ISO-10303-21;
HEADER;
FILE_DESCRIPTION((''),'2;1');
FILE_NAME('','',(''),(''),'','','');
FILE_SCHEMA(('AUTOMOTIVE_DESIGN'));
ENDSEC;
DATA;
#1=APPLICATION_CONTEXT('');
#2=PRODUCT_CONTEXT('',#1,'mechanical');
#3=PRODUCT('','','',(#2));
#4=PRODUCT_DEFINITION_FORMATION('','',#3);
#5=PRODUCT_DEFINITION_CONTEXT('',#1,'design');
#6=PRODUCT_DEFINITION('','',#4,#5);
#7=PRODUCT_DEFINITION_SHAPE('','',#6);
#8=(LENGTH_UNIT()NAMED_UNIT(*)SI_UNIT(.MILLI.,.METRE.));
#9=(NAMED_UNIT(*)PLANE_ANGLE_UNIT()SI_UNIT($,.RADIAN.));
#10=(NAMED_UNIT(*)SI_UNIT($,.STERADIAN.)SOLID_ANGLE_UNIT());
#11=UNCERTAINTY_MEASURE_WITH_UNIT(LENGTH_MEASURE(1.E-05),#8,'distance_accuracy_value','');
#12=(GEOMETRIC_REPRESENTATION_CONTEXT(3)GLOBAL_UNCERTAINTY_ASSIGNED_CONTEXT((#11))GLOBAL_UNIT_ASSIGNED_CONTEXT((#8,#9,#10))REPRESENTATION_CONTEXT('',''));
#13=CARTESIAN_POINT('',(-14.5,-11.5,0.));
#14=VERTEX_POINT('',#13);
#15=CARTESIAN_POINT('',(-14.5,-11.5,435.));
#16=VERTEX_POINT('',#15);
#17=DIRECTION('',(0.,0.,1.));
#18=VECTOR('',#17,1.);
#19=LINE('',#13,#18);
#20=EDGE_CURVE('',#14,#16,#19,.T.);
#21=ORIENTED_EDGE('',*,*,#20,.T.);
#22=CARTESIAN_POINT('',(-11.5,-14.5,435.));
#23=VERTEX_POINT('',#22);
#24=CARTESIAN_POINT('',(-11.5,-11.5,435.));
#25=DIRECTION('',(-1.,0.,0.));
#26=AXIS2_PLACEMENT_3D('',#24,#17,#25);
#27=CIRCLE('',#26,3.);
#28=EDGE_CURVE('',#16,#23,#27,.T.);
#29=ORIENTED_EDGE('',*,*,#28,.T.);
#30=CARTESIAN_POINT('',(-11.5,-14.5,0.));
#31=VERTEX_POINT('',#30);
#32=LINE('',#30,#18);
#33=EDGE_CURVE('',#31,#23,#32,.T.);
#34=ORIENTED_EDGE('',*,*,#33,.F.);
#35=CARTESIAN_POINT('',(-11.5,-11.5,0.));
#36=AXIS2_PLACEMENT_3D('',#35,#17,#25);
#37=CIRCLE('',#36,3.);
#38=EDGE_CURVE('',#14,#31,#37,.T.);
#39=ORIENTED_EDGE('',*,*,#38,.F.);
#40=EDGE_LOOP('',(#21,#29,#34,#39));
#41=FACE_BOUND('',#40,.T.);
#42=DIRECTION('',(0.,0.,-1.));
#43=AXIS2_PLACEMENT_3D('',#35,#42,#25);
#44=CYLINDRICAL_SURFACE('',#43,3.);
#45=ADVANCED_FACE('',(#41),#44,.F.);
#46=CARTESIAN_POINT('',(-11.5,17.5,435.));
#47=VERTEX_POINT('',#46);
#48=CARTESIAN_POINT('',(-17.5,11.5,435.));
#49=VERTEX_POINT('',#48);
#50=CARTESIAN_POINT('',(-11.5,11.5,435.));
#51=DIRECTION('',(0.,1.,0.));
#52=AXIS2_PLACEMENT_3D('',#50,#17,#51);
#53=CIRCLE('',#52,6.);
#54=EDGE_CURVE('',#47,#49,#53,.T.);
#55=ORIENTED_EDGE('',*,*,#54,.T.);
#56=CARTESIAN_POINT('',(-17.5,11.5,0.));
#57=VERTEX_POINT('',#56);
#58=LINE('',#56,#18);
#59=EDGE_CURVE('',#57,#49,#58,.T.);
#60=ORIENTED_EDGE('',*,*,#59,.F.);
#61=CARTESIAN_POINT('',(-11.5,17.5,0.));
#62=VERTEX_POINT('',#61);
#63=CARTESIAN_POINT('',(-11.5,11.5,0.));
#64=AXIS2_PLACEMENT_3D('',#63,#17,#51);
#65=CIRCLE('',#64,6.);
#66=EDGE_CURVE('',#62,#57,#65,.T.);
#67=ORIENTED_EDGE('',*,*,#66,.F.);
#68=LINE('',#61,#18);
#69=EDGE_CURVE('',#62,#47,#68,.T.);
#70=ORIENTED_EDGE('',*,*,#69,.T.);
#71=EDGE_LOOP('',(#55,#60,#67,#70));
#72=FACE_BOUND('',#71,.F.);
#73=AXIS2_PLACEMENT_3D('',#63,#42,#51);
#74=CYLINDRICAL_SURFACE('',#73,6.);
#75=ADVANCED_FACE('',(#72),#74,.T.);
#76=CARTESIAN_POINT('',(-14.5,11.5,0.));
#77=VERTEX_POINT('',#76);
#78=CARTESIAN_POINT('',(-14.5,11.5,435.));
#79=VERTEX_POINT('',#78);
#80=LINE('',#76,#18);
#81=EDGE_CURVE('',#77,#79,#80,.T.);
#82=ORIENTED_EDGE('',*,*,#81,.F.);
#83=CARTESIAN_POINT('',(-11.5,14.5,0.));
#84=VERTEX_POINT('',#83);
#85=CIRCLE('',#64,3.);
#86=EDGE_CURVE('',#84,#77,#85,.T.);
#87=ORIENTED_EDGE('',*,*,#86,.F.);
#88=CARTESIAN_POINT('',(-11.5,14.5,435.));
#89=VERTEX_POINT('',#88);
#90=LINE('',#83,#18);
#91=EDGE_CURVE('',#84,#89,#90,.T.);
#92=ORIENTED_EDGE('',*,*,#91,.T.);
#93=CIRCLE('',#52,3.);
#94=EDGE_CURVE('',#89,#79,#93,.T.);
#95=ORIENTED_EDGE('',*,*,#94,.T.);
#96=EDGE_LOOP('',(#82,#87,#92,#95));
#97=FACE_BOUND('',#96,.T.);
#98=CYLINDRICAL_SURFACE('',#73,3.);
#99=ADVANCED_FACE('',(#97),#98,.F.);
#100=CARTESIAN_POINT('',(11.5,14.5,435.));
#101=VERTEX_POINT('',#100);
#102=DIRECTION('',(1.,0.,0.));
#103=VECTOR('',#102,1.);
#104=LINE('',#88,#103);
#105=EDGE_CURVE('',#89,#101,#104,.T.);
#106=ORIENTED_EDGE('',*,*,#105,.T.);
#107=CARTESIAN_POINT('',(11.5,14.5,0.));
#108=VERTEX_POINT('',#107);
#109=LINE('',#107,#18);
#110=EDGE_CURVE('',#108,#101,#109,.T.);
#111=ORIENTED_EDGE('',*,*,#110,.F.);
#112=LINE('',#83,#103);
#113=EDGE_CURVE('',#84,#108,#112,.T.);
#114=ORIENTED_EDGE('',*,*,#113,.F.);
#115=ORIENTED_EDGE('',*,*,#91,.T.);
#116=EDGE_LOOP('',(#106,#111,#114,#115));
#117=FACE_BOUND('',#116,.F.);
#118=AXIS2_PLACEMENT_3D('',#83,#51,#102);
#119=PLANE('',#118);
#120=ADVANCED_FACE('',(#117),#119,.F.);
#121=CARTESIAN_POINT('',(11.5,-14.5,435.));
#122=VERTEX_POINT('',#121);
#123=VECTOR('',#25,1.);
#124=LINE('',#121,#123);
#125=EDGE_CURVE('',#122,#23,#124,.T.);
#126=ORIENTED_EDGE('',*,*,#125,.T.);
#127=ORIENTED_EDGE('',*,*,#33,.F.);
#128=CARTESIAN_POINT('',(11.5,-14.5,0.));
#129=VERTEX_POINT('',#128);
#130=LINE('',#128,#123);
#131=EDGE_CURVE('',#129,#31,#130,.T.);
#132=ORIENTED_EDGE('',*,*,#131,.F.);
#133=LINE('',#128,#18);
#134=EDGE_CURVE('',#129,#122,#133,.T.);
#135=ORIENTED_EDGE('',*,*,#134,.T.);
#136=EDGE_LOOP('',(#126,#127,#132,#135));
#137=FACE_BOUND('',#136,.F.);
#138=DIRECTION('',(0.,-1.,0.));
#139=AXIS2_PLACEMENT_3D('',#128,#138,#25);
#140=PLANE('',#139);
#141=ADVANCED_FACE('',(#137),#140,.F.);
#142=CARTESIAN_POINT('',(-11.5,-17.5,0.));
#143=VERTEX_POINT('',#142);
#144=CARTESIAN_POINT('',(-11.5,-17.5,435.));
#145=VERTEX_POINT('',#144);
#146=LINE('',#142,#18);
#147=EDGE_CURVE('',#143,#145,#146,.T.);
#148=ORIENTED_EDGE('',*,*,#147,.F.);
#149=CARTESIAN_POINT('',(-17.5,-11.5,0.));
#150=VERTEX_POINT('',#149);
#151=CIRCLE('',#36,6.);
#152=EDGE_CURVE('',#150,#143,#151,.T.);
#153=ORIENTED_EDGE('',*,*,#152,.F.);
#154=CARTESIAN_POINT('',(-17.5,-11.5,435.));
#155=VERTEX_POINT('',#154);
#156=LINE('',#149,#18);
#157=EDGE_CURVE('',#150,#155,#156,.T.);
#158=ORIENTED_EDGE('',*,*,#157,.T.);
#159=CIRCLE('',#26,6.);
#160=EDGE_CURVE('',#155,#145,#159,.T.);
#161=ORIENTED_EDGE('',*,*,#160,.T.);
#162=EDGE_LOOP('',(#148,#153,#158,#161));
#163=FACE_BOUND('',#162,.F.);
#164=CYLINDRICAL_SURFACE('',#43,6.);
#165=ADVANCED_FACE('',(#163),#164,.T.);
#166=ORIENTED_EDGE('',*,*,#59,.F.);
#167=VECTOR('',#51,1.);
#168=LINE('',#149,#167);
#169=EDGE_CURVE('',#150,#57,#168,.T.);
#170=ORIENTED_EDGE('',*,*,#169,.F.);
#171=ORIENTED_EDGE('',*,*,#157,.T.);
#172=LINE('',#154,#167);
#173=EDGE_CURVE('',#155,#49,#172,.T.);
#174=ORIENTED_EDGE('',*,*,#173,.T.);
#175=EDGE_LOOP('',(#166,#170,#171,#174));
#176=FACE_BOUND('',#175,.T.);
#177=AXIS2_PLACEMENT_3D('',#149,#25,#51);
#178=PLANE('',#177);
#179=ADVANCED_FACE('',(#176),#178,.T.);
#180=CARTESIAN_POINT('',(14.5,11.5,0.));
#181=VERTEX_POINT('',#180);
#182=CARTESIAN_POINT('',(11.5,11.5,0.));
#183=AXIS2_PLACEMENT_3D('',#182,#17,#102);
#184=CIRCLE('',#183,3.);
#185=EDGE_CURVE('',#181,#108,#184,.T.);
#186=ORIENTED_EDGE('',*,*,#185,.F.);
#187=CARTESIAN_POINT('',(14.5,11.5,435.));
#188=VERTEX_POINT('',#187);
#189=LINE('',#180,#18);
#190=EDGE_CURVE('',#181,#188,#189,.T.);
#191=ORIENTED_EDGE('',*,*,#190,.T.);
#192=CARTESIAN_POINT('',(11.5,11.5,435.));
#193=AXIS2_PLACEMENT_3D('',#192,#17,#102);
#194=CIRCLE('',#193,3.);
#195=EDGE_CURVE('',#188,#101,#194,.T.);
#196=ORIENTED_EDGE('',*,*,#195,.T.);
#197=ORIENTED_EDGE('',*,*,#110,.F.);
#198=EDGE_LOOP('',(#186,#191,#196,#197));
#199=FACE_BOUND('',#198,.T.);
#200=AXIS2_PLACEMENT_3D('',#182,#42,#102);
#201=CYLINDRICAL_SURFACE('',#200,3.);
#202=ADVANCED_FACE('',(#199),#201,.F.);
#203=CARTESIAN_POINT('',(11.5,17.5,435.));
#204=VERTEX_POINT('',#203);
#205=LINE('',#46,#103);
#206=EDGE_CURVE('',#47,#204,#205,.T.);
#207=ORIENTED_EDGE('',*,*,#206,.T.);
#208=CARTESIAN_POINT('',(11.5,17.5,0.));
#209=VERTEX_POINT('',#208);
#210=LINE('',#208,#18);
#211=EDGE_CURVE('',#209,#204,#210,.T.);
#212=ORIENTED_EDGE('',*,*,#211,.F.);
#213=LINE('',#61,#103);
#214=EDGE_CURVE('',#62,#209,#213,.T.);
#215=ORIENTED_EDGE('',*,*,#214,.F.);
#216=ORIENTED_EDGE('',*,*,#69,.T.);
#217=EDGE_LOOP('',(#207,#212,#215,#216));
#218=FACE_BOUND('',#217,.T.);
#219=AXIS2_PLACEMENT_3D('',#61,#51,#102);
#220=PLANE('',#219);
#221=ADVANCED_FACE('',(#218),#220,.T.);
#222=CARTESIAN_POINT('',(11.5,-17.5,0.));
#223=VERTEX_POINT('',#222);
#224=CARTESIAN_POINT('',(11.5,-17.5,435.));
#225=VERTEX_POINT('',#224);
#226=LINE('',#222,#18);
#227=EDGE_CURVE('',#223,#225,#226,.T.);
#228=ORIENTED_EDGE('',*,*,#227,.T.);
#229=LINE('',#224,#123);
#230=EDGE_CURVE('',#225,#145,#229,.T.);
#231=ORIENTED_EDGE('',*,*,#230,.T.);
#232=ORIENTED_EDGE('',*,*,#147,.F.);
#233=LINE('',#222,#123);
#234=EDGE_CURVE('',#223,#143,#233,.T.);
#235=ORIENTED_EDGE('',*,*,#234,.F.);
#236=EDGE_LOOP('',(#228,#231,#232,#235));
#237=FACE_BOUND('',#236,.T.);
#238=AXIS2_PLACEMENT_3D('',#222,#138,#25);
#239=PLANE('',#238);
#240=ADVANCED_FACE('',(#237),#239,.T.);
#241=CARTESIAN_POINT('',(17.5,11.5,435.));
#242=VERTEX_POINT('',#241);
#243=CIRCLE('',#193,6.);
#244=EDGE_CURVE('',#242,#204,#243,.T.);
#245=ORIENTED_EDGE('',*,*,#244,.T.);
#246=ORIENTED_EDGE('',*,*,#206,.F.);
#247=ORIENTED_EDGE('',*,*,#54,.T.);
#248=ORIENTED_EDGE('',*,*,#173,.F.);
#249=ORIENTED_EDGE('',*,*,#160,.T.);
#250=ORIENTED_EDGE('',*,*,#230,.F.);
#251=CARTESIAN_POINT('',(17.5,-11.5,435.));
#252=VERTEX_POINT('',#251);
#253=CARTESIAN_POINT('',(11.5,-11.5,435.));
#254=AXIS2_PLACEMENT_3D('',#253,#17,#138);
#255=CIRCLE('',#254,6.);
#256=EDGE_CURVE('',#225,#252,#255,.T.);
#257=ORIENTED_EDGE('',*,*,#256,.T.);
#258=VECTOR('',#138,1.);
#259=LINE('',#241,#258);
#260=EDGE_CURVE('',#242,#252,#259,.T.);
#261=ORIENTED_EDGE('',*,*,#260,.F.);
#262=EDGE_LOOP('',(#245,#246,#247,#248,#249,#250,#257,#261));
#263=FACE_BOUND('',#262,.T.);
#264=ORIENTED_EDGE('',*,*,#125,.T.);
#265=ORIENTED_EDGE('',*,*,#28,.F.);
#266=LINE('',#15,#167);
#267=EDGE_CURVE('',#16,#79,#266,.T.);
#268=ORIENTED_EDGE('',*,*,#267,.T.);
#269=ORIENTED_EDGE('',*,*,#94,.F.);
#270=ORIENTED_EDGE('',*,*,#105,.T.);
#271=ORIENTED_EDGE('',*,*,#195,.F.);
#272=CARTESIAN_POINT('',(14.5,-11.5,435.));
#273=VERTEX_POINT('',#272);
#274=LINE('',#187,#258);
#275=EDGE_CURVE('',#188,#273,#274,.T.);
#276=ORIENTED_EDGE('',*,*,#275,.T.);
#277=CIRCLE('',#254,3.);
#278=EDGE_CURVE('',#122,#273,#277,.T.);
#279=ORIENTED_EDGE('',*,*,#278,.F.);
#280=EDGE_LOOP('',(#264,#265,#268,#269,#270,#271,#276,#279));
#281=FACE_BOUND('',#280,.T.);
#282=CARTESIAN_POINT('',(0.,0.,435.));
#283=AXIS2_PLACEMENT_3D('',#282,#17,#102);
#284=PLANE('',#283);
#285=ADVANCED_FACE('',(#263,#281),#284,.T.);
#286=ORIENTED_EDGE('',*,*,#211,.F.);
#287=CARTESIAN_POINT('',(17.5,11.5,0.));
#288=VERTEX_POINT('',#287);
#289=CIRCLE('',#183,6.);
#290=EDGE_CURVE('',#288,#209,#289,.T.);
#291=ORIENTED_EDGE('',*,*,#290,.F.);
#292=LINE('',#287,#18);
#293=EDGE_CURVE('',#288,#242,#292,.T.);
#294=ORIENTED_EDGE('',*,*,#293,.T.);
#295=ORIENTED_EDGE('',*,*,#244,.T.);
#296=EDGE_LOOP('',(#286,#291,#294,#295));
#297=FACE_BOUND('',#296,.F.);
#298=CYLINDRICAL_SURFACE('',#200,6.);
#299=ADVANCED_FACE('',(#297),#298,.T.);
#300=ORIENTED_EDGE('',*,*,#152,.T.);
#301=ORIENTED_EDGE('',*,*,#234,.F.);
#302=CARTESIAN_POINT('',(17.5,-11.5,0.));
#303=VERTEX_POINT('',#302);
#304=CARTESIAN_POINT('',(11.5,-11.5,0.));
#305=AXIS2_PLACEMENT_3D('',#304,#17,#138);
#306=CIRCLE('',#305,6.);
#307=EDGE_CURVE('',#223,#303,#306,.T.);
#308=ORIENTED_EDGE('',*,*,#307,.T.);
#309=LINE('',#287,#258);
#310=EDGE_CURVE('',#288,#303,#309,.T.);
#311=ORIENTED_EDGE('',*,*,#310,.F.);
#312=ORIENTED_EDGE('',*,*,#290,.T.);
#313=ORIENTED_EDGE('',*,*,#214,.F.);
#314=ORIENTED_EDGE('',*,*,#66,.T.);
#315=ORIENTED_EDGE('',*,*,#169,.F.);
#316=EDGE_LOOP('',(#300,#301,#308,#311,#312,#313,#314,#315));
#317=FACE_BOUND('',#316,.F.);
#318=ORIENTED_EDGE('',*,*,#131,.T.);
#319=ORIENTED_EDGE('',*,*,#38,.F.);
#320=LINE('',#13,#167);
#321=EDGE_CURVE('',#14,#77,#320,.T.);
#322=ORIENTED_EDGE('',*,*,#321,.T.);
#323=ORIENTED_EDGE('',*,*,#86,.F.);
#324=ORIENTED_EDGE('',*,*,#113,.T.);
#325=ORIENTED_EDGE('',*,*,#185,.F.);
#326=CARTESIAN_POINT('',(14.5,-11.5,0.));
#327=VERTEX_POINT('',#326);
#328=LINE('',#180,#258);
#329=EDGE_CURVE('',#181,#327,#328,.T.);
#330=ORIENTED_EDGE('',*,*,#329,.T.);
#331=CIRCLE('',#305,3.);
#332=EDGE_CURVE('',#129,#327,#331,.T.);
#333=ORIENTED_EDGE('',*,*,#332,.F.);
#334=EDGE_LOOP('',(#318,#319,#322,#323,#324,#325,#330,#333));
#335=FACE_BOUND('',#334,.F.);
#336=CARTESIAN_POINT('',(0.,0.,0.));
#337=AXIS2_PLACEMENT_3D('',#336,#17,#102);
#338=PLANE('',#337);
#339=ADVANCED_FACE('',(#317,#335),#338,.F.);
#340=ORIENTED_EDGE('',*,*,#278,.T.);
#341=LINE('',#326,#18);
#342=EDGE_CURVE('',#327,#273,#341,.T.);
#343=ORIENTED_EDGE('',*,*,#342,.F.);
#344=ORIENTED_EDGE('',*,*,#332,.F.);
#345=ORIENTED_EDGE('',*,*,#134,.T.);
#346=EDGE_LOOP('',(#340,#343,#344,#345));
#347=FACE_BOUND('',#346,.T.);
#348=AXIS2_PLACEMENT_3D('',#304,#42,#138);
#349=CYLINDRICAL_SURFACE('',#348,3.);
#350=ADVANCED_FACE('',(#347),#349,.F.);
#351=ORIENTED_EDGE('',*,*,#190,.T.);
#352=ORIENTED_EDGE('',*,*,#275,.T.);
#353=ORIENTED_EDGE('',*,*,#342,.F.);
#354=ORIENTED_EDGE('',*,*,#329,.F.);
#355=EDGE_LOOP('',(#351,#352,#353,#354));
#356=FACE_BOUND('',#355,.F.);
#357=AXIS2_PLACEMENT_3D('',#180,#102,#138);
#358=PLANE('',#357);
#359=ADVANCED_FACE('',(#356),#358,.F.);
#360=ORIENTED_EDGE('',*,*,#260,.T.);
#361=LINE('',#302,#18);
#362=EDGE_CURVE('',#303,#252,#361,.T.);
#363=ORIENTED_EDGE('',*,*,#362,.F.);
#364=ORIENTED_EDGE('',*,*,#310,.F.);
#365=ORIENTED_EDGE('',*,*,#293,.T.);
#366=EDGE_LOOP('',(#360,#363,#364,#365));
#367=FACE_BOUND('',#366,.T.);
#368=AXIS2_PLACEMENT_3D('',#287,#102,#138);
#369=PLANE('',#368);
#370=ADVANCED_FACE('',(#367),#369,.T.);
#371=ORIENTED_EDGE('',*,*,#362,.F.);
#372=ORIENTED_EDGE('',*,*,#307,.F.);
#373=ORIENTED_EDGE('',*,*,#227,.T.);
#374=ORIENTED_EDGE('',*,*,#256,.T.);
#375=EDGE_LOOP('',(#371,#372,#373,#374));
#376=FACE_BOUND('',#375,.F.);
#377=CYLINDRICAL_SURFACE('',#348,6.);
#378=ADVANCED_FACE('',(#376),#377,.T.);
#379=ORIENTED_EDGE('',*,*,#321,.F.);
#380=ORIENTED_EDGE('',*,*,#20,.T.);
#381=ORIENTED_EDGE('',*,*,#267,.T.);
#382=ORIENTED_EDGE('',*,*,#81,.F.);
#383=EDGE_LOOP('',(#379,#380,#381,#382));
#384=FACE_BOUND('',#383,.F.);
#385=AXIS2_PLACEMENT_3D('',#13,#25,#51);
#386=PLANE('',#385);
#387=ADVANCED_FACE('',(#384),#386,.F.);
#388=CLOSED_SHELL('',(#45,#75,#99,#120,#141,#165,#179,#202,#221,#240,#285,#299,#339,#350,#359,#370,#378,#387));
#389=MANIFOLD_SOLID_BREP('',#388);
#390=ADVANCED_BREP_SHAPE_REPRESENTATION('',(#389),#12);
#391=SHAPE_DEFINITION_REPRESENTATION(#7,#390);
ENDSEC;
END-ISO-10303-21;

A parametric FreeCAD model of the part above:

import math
import FreeCAD as App
import Part
import Sketcher
from FreeCAD import Vector
Q = App.Units.Quantity

doc = App.newDocument("Part")
params = doc.addObject("Spreadsheet::Sheet", "Params")
for row, (alias, value) in enumerate([
    ("sketch1_radius", "6 mm"),
    ("sketch1_radius2", "3 mm"),
    ("pad1_length", "435 mm"),
], start=1):
    params.set(f"A{row}", alias)
    params.set(f"B{row}", "=" + value)
    params.setAlias(f"B{row}", alias)

body = doc.addObject("PartDesign::Body", "Body")

# Sketch on XY plane
sketch1 = body.newObject("Sketcher::SketchObject", "Sketch")
sketch1.AttachmentSupport = (doc.getObject("XY_Plane"), [""])
sketch1.MapMode = "FlatFace"
sketch1.addGeometry([
    Part.LineSegment(Vector(11.5, 17.5, 0), Vector(-11.5, 17.5, 0)),  # 0
    Part.ArcOfCircle(Part.Circle(Vector(-11.5, 11.5, 0), Vector(0, 0, 1), 6), math.radians(90), math.radians(180)),  # 1
    Part.LineSegment(Vector(-17.5, 11.5, 0), Vector(-17.5, -11.5, 0)),  # 2
    Part.ArcOfCircle(Part.Circle(Vector(-11.5, -11.5, 0), Vector(0, 0, 1), 6), math.radians(180), math.radians(270)),  # 3
    Part.LineSegment(Vector(-11.5, -17.5, 0), Vector(11.5, -17.5, 0)),  # 4
    Part.ArcOfCircle(Part.Circle(Vector(11.5, -11.5, 0), Vector(0, 0, 1), 6), math.radians(-90), math.radians(0)),  # 5
    Part.LineSegment(Vector(17.5, -11.5, 0), Vector(17.5, 11.5, 0)),  # 6
    Part.ArcOfCircle(Part.Circle(Vector(11.5, 11.5, 0), Vector(0, 0, 1), 6), math.radians(0), math.radians(90)),  # 7
    Part.ArcOfCircle(Part.Circle(Vector(-11.5, 11.5, 0), Vector(0, 0, 1), 3), math.radians(90), math.radians(180)),  # 8
    Part.LineSegment(Vector(-11.5, 14.5, 0), Vector(11.5, 14.5, 0)),  # 9
    Part.ArcOfCircle(Part.Circle(Vector(11.5, 11.5, 0), Vector(0, 0, 1), 3), math.radians(0), math.radians(90)),  # 10
    Part.LineSegment(Vector(14.5, 11.5, 0), Vector(14.5, -11.5, 0)),  # 11
    Part.ArcOfCircle(Part.Circle(Vector(11.5, -11.5, 0), Vector(0, 0, 1), 3), math.radians(-90), math.radians(0)),  # 12
    Part.LineSegment(Vector(11.5, -14.5, 0), Vector(-11.5, -14.5, 0)),  # 13
    Part.ArcOfCircle(Part.Circle(Vector(-11.5, -11.5, 0), Vector(0, 0, 1), 3), math.radians(180), math.radians(270)),  # 14
    Part.LineSegment(Vector(-14.5, -11.5, 0), Vector(-14.5, 11.5, 0)),  # 15
], False)
sketch1.addConstraint([
    Sketcher.Constraint("Tangent", 0, 2, 1, 1),
    Sketcher.Constraint("Tangent", 1, 2, 2, 1),
    Sketcher.Constraint("Tangent", 2, 2, 3, 1),
    Sketcher.Constraint("Tangent", 3, 2, 4, 1),
    Sketcher.Constraint("Tangent", 4, 2, 5, 1),
    Sketcher.Constraint("Tangent", 5, 2, 6, 1),
    Sketcher.Constraint("Tangent", 6, 2, 7, 1),
    Sketcher.Constraint("Tangent", 7, 2, 0, 1),
    Sketcher.Constraint("Tangent", 8, 1, 9, 1),
    Sketcher.Constraint("Tangent", 9, 2, 10, 2),
    Sketcher.Constraint("Tangent", 10, 1, 11, 1),
    Sketcher.Constraint("Tangent", 11, 2, 12, 2),
    Sketcher.Constraint("Tangent", 12, 1, 13, 1),
    Sketcher.Constraint("Tangent", 13, 2, 14, 2),
    Sketcher.Constraint("Tangent", 14, 1, 15, 1),
    Sketcher.Constraint("Tangent", 15, 2, 8, 2),
    Sketcher.Constraint("Horizontal", 0),
    Sketcher.Constraint("Vertical", 2),
    Sketcher.Constraint("Horizontal", 4),
    Sketcher.Constraint("Vertical", 6),
    Sketcher.Constraint("Horizontal", 9),
    Sketcher.Constraint("Vertical", 11),
    Sketcher.Constraint("Horizontal", 13),
    Sketcher.Constraint("Vertical", 15),
    Sketcher.Constraint("Coincident", 8, 3, 1, 3),
    Sketcher.Constraint("Coincident", 10, 3, 7, 3),
    Sketcher.Constraint("Coincident", 12, 3, 5, 3),
    Sketcher.Constraint("Equal", 1, 3),
    Sketcher.Constraint("Equal", 3, 5),
    Sketcher.Constraint("Equal", 5, 7),
    Sketcher.Constraint("Equal", 12, 14),
    Sketcher.Constraint("Symmetric", 1, 3, 5, 3, -1, 1),
    Sketcher.Constraint("Equal", 13, 2),
    Sketcher.Constraint("Radius", 1, Q("6 mm")),
    Sketcher.Constraint("Radius", 8, Q("3 mm")),
    Sketcher.Constraint("DistanceY", -1, 1, 0, 2, Q("17.5 mm")),
])
sketch1.setExpression("Constraints[33]", "Params.sketch1_radius")
sketch1.setExpression("Constraints[34]", "Params.sketch1_radius2")
pad1 = body.newObject("PartDesign::Pad", "Pad")
pad1.Profile = sketch1
pad1.setExpression("Length", "Params.pad1_length")

doc.recompute()
